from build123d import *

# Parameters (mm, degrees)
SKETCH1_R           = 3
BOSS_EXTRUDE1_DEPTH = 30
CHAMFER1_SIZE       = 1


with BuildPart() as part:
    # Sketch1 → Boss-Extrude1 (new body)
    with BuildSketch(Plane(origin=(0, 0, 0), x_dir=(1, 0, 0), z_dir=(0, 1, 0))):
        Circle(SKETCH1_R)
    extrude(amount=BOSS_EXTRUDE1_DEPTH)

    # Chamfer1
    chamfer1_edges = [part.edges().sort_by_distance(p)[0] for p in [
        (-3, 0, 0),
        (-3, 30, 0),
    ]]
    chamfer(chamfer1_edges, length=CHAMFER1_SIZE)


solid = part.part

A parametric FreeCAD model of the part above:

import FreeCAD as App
import Part
import Sketcher
from FreeCAD import Vector


def edges_at(feature, points):
    """Names of the edges that pass closest to the given points."""
    edges = feature.Shape.Edges
    near = lambda p: min(range(len(edges)), key=lambda i: edges[i].distToShape(Part.Vertex(*p))[0])
    return sorted({f"Edge{near(p) + 1}" for p in points})

doc = App.newDocument("Part")
body = doc.addObject("PartDesign::Body", "Body")

# Sketch on XZ plane
sketch1 = body.newObject("Sketcher::SketchObject", "Sketch")
sketch1.AttachmentSupport = (doc.getObject("XZ_Plane"), [""])
sketch1.MapMode = "FlatFace"
sketch1.addGeometry(Part.Circle(Vector(0, 0, 0), Vector(0, 0, 1), 3), False)
sketch1.addConstraint([
    Sketcher.Constraint("Coincident", 0, 3, -1, 1),
    Sketcher.Constraint("Diameter", 0, 6.0),
])
pad1 = body.newObject("PartDesign::Pad", "Pad")
pad1.Profile = sketch1
pad1.Length = 30
pad1.Reversed = True
doc.recompute()

chamfer = body.newObject("PartDesign::Chamfer", "Chamfer")
chamfer.Base = (pad1, edges_at(pad1, [(-3, 0, 0), (-3, 30, 0)]))
chamfer.Size = 1

doc.recompute()
